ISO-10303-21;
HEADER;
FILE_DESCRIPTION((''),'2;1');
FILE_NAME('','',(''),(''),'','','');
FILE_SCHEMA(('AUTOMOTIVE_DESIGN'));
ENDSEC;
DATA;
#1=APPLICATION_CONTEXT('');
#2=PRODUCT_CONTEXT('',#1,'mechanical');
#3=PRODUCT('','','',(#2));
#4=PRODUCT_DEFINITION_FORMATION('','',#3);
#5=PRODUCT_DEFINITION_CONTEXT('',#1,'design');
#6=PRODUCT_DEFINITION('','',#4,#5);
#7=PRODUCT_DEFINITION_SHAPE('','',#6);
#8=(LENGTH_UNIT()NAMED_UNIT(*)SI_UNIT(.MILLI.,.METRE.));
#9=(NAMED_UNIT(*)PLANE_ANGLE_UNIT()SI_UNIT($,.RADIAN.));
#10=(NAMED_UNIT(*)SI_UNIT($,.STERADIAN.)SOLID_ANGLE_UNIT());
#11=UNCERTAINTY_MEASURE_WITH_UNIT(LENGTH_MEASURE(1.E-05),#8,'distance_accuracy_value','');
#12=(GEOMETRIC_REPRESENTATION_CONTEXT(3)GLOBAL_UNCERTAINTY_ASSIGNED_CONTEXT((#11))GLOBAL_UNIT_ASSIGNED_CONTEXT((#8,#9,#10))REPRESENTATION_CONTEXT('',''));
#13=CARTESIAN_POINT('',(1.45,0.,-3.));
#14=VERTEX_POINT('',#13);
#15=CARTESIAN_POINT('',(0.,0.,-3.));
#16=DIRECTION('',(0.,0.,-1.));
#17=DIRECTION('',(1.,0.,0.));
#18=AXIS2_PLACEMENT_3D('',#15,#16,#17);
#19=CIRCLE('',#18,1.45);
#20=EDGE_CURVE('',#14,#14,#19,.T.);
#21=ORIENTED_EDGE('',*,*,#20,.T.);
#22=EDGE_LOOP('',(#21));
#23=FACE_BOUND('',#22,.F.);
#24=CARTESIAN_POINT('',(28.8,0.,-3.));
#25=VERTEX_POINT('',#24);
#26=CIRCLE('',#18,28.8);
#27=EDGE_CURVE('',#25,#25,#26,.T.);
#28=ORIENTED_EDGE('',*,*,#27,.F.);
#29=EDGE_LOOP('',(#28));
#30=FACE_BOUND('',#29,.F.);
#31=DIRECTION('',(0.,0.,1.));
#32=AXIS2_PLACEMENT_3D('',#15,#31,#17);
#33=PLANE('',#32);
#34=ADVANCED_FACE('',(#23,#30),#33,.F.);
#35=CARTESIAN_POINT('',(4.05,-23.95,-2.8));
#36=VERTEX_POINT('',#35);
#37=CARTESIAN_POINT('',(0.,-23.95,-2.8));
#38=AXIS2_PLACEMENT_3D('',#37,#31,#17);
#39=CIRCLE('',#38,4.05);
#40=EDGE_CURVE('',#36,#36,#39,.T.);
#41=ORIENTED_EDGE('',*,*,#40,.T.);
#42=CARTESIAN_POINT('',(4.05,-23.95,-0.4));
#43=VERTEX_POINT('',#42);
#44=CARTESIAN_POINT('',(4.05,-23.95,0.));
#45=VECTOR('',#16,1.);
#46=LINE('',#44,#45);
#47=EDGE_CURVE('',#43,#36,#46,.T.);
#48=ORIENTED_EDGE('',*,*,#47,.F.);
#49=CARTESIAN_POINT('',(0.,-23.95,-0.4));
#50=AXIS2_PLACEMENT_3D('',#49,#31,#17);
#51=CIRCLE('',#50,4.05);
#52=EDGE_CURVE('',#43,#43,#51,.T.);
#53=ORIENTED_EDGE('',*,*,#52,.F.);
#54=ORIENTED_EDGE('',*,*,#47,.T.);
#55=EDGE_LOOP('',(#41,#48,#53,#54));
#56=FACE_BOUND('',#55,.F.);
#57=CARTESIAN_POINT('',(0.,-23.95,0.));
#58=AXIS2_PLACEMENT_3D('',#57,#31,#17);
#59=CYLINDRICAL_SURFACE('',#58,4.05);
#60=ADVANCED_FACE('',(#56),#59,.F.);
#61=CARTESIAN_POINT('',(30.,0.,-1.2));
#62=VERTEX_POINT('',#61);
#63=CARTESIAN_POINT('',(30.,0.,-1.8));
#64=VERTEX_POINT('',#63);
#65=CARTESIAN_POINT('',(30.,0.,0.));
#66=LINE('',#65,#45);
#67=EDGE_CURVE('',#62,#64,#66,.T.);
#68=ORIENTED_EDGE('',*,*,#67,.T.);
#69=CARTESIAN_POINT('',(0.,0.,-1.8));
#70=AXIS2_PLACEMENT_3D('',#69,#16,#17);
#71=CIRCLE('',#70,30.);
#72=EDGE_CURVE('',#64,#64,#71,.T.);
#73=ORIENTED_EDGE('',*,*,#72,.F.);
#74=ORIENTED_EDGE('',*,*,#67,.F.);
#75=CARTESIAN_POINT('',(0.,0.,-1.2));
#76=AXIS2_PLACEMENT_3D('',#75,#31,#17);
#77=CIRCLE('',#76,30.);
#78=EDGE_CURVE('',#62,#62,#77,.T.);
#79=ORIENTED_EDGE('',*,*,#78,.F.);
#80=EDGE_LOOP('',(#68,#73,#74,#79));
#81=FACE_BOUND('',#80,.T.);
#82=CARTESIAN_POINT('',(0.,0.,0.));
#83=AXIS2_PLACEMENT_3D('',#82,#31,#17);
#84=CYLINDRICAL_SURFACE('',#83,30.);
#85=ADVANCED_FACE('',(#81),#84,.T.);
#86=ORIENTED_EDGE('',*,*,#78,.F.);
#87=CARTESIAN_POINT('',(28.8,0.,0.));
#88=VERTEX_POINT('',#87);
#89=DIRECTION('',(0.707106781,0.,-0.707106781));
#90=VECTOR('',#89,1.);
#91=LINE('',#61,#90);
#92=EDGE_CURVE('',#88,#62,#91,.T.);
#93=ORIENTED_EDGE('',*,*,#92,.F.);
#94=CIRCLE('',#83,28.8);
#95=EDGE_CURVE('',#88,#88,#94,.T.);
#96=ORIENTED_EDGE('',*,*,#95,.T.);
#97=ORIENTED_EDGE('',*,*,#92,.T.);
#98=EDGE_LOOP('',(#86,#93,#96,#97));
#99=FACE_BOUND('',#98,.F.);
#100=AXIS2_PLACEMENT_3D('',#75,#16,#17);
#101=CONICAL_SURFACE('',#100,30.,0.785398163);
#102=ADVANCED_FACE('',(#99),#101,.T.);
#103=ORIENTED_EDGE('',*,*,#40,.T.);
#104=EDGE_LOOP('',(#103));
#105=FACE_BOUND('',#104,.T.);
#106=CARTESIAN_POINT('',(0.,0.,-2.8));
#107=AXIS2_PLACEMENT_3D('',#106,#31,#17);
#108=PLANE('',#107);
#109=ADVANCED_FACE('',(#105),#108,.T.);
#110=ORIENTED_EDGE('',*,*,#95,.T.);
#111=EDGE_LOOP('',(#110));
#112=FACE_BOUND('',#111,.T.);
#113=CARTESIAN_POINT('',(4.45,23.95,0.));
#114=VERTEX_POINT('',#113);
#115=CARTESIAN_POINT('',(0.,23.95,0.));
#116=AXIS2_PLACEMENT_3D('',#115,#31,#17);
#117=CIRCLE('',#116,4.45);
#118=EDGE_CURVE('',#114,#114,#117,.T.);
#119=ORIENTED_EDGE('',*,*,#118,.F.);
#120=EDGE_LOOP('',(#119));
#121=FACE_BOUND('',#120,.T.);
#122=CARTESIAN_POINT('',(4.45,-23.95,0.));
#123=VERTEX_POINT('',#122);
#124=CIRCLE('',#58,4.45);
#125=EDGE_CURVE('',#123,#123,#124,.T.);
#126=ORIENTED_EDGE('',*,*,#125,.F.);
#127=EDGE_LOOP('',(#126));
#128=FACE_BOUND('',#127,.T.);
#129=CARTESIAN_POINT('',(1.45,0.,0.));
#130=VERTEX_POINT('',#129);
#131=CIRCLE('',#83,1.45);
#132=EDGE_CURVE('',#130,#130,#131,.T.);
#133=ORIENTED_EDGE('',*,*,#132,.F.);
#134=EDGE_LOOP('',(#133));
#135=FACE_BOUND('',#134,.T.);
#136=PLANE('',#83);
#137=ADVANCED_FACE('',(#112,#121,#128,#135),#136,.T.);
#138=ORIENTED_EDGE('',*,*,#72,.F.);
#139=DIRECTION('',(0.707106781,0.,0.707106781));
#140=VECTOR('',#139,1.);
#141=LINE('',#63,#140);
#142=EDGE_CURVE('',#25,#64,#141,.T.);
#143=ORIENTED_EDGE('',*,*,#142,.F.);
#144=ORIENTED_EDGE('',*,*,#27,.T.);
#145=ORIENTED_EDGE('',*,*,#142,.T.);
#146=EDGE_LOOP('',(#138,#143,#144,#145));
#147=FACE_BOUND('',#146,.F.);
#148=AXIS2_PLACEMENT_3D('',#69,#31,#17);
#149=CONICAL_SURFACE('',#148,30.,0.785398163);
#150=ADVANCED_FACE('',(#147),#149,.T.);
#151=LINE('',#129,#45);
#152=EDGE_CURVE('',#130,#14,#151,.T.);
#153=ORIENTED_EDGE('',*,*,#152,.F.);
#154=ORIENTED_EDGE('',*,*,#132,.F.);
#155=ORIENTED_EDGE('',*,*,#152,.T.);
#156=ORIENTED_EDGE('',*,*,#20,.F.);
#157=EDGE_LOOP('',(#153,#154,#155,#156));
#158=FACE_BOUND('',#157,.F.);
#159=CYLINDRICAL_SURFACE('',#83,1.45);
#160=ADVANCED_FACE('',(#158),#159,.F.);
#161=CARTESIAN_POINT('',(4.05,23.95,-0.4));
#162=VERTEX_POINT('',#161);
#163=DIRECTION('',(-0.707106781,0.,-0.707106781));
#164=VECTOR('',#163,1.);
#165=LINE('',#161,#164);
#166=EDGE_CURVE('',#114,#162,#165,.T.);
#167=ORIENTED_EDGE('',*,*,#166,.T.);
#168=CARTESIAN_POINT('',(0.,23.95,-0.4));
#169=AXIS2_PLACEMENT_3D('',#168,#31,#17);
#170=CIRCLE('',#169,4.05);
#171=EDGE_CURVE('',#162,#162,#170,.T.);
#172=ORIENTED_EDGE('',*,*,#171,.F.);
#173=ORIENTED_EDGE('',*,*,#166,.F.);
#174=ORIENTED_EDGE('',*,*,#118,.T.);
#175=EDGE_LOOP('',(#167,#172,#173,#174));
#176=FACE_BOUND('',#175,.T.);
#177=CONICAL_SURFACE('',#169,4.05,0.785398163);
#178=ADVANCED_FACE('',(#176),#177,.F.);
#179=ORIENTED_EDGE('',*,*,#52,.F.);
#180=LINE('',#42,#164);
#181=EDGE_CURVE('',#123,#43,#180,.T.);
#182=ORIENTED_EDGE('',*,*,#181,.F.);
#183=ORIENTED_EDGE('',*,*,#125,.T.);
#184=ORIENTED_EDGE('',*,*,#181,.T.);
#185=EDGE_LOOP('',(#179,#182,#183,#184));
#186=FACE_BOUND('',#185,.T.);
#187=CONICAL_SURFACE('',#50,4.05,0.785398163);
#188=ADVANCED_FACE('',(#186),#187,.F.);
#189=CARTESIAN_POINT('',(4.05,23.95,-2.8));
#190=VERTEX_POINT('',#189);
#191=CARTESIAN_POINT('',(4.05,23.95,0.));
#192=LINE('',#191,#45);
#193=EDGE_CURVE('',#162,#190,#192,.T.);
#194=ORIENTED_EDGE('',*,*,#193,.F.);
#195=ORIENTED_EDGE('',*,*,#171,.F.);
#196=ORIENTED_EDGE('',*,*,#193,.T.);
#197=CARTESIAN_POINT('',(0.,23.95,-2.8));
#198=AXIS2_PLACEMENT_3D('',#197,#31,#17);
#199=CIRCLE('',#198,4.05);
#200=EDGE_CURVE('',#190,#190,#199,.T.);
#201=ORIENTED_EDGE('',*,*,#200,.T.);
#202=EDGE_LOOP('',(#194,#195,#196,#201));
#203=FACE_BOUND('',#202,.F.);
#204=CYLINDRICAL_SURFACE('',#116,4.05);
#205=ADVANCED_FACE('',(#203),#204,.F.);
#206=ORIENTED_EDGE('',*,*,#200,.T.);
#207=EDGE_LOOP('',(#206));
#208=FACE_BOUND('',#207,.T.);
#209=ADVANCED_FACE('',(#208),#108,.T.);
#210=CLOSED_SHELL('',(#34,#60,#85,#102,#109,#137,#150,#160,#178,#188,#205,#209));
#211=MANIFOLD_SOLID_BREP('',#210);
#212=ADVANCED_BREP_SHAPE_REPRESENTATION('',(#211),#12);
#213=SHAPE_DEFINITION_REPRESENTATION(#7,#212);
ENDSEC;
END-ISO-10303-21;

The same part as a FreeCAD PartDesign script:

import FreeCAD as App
import Part
import Sketcher
Q = App.Units.Quantity


def edges_at(feature, points):
    """Names of the edges that pass closest to the given points."""
    edges = feature.Shape.Edges
    near = lambda p: min(range(len(edges)), key=lambda i: edges[i].distToShape(Part.Vertex(*p))[0])
    return sorted({f"Edge{near(p) + 1}" for p in points})

doc = App.newDocument("Part")
params = doc.addObject("Spreadsheet::Sheet", "Params")
for row, (alias, value) in enumerate([
    ("sketch1_diameter", "60 mm"),
    ("sketch1_diameter2", "2.9 mm"),
    ("pad1_length", "3 mm"),
    ("sketch2_diameter", "8.1 mm"),
    ("pocket1_length", "2.8 mm"),
    ("chamfer_size", "1.2 mm"),
    ("chamfer2_size", "0.4 mm"),
], start=1):
    params.set(f"A{row}", alias)
    params.set(f"B{row}", "=" + value)
    params.setAlias(f"B{row}", alias)

body = doc.addObject("PartDesign::Body", "Body")

# Sketch on XY plane
sketch1 = body.newObject("Sketcher::SketchObject", "Sketch")
sketch1.AttachmentSupport = (doc.getObject("XY_Plane"), [""])
sketch1.MapMode = "FlatFace"
sketch1.addGeometry(Part.Circle(App.Vector(0, 0, 0), App.Vector(0, 0, 1), 30), False)
sketch1.addGeometry(Part.Circle(App.Vector(0, 0, 0), App.Vector(0, 0, 1), 1.4), False)
sketch1.addConstraint(Sketcher.Constraint("Coincident", 0, 3, -1, 1))
sketch1.addConstraint(Sketcher.Constraint("Coincident", 1, 3, -1, 1))
sketch1.addConstraint(Sketcher.Constraint("Diameter", 0, Q("60 mm")))
sketch1.addConstraint(Sketcher.Constraint("Diameter", 1, Q("2.9 mm")))
sketch1.setExpression("Constraints[2]", "Params.sketch1_diameter")
sketch1.setExpression("Constraints[3]", "Params.sketch1_diameter2")
pad1 = body.newObject("PartDesign::Pad", "Pad")
pad1.Profile = sketch1
pad1.setExpression("Length", "Params.pad1_length")
pad1.Reversed = True

# Sketch on XY plane
sketch2 = body.newObject("Sketcher::SketchObject", "Sketch001")
sketch2.AttachmentSupport = (doc.getObject("XY_Plane"), [""])
sketch2.MapMode = "FlatFace"
sketch2.addGeometry(Part.Circle(App.Vector(0, 23.9, 0), App.Vector(0, 0, 1), 4), False)
sketch2.addGeometry(Part.Circle(App.Vector(0, -23.9, 0), App.Vector(0, 0, 1), 4), False)
sketch2.addConstraint(Sketcher.Constraint("Equal", 0, 1))
sketch2.addConstraint(Sketcher.Constraint("Symmetric", 0, 3, 1, 3, -1, 1))
sketch2.addConstraint(Sketcher.Constraint("PointOnObject", 0, 3, -2))
sketch2.addConstraint(Sketcher.Constraint("Diameter", 0, Q("8.1 mm")))
sketch2.addConstraint(Sketcher.Constraint("DistanceY", 1, 3, 0, 3, Q("47.9 mm")))
sketch2.setExpression("Constraints[3]", "Params.sketch2_diameter")
pocket1 = body.newObject("PartDesign::Pocket", "Pocket")
pocket1.Profile = sketch2
pocket1.setExpression("Length", "Params.pocket1_length")
doc.recompute()

chamfer = body.newObject("PartDesign::Chamfer", "Chamfer")
chamfer.Base = (pocket1, edges_at(pocket1, [(-27.97, -10.848, 0), (-27.97, 10.848, -3)]))
chamfer.setExpression("Size", "Params.chamfer_size")
doc.recompute()

chamfer2 = body.newObject("PartDesign::Chamfer", "Chamfer001")
chamfer2.Base = (chamfer, edges_at(chamfer, [(-3.776, -22.485, 0), (-3.776, 25.415, 0)]))
chamfer2.setExpression("Size", "Params.chamfer2_size")

doc.recompute()
